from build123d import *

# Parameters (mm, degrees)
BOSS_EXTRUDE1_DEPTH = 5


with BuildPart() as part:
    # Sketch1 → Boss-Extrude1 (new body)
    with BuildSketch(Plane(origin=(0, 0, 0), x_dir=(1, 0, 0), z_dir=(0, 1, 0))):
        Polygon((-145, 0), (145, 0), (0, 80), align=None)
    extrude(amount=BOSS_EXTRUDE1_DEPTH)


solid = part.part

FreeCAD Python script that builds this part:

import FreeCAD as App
import Part
import Sketcher
Q = App.Units.Quantity


def add_polygon(sketch, points):
    """Adds a closed chain of lines whose ends are joined by coincident constraints."""
    first, n = sketch.GeometryCount, len(points)
    for a, b in zip(points, points[1:] + points[:1]):
        sketch.addGeometry(Part.LineSegment(App.Vector(*a, 0), App.Vector(*b, 0)), False)
    for i in range(n):
        sketch.addConstraint(Sketcher.Constraint("Coincident", first + i, 2, first + (i + 1) % n, 1))

doc = App.newDocument("Part")
body = doc.addObject("PartDesign::Body", "Body")

# Sketch on XZ plane
sketch1 = doc.addObject("Sketcher::SketchObject", "Sketch")
body.addObject(sketch1)
sketch1.AttachmentSupport = (doc.XZ_Plane, [""])
sketch1.MapMode = "FlatFace"
add_polygon(sketch1, [(-145, 0), (145, 0), (0, -80)])  # lines 0-2
sketch1.addConstraint([
    Sketcher.Constraint("Horizontal", 0),
    Sketcher.Constraint("Symmetric", 0, 2, 2, 2, -1, 1),
    Sketcher.Constraint("PointOnObject", 1, 2, -2),
    Sketcher.Constraint("DistanceX", 0, 1, 0, 2, Q("290 mm")),
    Sketcher.Constraint("DistanceY", 1, 2, -1, 1, Q("80 mm")),
])
pad1 = doc.addObject("PartDesign::Pad", "Pad")
body.addObject(pad1)
pad1.Profile = sketch1
pad1.Length = 5
pad1.Reversed = True

doc.recompute()
